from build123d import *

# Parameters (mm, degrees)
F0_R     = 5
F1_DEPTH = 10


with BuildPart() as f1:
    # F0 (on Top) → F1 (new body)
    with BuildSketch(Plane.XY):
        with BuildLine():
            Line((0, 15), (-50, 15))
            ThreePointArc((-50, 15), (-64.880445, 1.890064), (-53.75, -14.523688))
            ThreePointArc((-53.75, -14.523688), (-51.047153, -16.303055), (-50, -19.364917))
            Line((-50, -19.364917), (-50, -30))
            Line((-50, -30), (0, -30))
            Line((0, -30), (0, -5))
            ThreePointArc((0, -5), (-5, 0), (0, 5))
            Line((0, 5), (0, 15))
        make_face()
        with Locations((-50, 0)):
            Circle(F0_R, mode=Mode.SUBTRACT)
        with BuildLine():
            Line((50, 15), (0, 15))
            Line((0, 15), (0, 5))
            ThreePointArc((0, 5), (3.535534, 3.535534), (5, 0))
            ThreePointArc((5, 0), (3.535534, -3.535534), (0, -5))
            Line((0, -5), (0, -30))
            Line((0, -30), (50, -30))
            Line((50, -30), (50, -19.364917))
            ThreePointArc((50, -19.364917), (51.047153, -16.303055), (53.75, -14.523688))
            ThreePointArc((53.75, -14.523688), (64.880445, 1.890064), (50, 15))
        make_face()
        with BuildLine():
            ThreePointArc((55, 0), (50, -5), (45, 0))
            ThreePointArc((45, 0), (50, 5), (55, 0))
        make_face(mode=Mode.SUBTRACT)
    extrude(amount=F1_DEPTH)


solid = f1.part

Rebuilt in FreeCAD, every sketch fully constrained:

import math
import FreeCAD as App
import Part
import Sketcher
from FreeCAD import Vector

doc = App.newDocument("Part")
body = doc.addObject("PartDesign::Body", "Body")

# Sketch on XY plane
sketch1 = doc.addObject("Sketcher::SketchObject", "Sketch")
body.addObject(sketch1)
sketch1.AttachmentSupport = (doc.XY_Plane, [""])
sketch1.MapMode = "FlatFace"
sketch1.addGeometry([
    Part.ArcOfCircle(Part.Circle(Vector(-50, 0, 0), Vector(0, 0, 1), 15), math.radians(90), math.radians(256)),  # 0
    Part.ArcOfCircle(Part.Circle(Vector(-55, -19.4, 0), Vector(0, 0, 1), 5), math.radians(0), math.radians(76)),  # 1
    Part.LineSegment(Vector(-50, -19.4, 0), Vector(-50, -30, 0)),  # 2
    Part.LineSegment(Vector(-50, -30, 0), Vector(50, -30, 0)),  # 3
    Part.LineSegment(Vector(50, -30, 0), Vector(50, -19.4, 0)),  # 4
    Part.ArcOfCircle(Part.Circle(Vector(55, -19.4, 0), Vector(0, 0, 1), 5), math.radians(104), math.radians(180)),  # 5
    Part.ArcOfCircle(Part.Circle(Vector(50, 0, 0), Vector(0, 0, 1), 15), math.radians(-76), math.radians(90)),  # 6
    Part.LineSegment(Vector(50, 15, 0), Vector(-50, 15, 0)),  # 7
    Part.Circle(Vector(-50, 0, 0), Vector(0, 0, 1), 5),  # 8
    Part.ArcOfCircle(Part.Circle(Vector(0, 0, 0), Vector(0, 0, 1), 5), math.radians(90), math.radians(270)),  # 9
    Part.ArcOfCircle(Part.Circle(Vector(0, 0, 0), Vector(0, 0, 1), 5), math.radians(0), math.radians(90)),  # 10
    Part.ArcOfCircle(Part.Circle(Vector(0, 0, 0), Vector(0, 0, 1), 5), math.radians(-90), math.radians(0)),  # 11
    Part.Circle(Vector(50, 0, 0), Vector(0, 0, 1), 5),  # 12
], False)
sketch1.addConstraint([
    Sketcher.Constraint("Tangent", 0, 2, 1, 2),
    Sketcher.Constraint("Tangent", 1, 1, 2, 1),
    Sketcher.Constraint("Coincident", 2, 2, 3, 1),
    Sketcher.Constraint("Coincident", 3, 2, 4, 1),
    Sketcher.Constraint("Tangent", 4, 2, 5, 2),
    Sketcher.Constraint("Tangent", 5, 1, 6, 1),
    Sketcher.Constraint("Tangent", 6, 2, 7, 1),
    Sketcher.Constraint("Tangent", 7, 2, 0, 1),
    Sketcher.Constraint("Tangent", 9, 1, 10, 2),
    Sketcher.Constraint("Tangent", 10, 1, 11, 2),
    Sketcher.Constraint("Tangent", 11, 1, 9, 2),
    Sketcher.Constraint("Vertical", 2),
    Sketcher.Constraint("Horizontal", 3),
    Sketcher.Constraint("Vertical", 4),
    Sketcher.Constraint("Horizontal", 7),
    Sketcher.Constraint("Coincident", 9, 3, -1, 1),
    Sketcher.Constraint("Coincident", 8, 3, 0, 3),
    Sketcher.Constraint("Coincident", 12, 3, 6, 3),
    Sketcher.Constraint("Equal", 1, 5),
    Sketcher.Constraint("Equal", 0, 6),
    Sketcher.Constraint("Equal", 5, 8),
    Sketcher.Constraint("Equal", 8, 9),
    Sketcher.Constraint("Equal", 11, 12),
    Sketcher.Constraint("Symmetric", 0, 3, 6, 3, -1, 1),
    Sketcher.Constraint("PointOnObject", 9, 1, -2),
    Sketcher.Constraint("PointOnObject", 10, 1, -1),
    Sketcher.Constraint("PointOnObject", 11, 1, -2),
    Sketcher.Constraint("Horizontal", 1, 3, 5, 3),
    Sketcher.Constraint("Vertical", 8, 3, 1, 1),
    Sketcher.Constraint("Diameter", 8, 10.0),
    Sketcher.Constraint("Radius", 0, 15.0),
    Sketcher.Constraint("DistanceX", 3, 1, 3, 2, 100.0),
    Sketcher.Constraint("DistanceY", 2, 2, -1, 1, 30.0),
])
pad1 = doc.addObject("PartDesign::Pad", "Pad")
body.addObject(pad1)
pad1.Profile = sketch1
pad1.Length = 10

doc.recompute()
